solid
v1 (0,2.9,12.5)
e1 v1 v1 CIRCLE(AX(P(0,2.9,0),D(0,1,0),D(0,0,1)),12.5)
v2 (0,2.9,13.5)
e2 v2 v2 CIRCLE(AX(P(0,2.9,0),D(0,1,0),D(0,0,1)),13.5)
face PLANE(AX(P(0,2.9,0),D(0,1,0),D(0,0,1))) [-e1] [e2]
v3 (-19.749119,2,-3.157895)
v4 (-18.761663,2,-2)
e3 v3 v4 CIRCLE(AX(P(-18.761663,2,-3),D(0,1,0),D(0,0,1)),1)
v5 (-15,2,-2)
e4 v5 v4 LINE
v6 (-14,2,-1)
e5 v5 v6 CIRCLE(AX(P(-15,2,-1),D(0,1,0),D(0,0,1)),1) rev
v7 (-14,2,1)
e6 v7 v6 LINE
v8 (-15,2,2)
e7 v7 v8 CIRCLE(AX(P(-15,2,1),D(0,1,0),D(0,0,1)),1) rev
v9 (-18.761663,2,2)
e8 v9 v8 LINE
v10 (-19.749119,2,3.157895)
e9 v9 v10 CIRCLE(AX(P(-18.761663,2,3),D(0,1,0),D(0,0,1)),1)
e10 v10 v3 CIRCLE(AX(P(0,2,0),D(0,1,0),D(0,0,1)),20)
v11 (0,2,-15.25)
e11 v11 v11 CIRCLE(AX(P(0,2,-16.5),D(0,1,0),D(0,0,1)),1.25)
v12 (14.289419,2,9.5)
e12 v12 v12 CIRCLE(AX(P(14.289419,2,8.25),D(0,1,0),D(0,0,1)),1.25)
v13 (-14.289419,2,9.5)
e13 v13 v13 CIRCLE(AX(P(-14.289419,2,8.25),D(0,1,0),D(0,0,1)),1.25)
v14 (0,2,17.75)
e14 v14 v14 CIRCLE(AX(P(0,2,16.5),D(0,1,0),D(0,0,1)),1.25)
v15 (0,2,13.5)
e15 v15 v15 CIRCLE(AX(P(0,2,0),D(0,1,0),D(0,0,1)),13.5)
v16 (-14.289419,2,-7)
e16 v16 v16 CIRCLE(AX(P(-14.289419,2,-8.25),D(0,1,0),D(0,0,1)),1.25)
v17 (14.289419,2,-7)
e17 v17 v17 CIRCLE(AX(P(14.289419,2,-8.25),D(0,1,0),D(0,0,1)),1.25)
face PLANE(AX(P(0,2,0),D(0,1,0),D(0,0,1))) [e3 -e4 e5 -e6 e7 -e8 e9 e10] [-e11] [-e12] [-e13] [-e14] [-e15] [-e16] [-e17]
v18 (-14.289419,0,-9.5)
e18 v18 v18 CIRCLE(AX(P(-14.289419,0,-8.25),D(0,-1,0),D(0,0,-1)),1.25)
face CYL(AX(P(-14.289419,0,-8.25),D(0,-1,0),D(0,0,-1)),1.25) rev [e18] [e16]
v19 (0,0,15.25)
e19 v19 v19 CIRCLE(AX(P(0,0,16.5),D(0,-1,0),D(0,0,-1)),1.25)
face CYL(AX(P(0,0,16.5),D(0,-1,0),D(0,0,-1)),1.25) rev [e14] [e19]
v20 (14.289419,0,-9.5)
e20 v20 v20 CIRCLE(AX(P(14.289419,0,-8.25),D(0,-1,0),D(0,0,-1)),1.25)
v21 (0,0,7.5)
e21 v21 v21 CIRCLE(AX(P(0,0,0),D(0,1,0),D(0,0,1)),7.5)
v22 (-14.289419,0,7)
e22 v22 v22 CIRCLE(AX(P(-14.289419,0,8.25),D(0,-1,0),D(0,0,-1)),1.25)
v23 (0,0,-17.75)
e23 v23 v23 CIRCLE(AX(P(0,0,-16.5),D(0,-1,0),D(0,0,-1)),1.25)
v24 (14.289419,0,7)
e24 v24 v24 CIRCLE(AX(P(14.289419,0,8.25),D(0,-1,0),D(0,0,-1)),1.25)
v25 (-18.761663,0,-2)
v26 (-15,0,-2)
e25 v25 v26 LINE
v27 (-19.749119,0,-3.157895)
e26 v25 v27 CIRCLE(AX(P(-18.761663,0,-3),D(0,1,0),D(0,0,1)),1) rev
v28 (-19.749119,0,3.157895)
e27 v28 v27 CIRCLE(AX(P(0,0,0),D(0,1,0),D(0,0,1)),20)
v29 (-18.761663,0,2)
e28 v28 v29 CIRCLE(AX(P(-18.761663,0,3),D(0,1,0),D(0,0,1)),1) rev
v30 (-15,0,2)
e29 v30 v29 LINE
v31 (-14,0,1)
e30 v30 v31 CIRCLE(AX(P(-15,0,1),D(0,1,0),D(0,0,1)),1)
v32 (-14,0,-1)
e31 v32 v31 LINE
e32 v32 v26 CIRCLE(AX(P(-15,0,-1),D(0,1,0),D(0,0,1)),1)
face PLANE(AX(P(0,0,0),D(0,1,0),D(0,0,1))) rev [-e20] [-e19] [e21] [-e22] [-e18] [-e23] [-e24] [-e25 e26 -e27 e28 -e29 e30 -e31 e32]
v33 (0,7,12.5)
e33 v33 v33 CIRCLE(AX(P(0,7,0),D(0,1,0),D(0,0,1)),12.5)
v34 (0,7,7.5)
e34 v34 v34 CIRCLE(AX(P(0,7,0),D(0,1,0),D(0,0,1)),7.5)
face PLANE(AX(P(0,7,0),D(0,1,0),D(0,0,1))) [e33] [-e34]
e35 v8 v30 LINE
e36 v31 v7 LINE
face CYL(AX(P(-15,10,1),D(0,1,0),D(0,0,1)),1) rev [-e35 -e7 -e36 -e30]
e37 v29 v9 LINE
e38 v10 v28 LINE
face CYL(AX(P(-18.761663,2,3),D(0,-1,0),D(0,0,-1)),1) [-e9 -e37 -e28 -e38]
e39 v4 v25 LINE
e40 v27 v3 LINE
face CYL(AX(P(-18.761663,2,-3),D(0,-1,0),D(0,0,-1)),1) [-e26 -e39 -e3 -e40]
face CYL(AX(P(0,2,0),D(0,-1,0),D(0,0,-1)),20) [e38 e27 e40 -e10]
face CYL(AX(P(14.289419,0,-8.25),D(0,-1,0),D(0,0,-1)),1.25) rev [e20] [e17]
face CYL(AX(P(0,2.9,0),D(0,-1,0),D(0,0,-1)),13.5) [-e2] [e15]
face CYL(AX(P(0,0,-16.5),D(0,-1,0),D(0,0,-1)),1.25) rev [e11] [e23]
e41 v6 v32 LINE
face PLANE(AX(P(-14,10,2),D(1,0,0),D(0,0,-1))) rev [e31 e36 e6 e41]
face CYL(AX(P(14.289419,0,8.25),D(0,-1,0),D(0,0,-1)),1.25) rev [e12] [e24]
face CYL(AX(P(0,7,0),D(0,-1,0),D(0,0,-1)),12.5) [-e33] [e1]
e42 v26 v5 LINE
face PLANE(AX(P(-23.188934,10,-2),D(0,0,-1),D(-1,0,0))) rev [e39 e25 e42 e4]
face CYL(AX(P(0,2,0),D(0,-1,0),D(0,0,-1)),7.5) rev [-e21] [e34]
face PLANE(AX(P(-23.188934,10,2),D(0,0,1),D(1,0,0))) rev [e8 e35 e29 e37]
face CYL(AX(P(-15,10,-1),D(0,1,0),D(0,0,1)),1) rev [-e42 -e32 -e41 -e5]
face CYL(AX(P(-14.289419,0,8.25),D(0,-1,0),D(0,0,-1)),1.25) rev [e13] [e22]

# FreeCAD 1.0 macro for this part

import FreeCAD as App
import Part
import Sketcher

V = App.Vector
Q = App.Units.Quantity


def edges_at(feature, points):
    """Names of the edges that pass closest to the given points."""
    edges = feature.Shape.Edges
    near = lambda p: min(range(len(edges)), key=lambda i: edges[i].distToShape(Part.Vertex(*p))[0])
    return sorted({f"Edge{near(p) + 1}" for p in points})


def add_polygon(sketch, points):
    """Adds a closed chain of lines whose ends are joined by coincident constraints."""
    first, n = sketch.GeometryCount, len(points)
    for a, b in zip(points, points[1:] + points[:1]):
        sketch.addGeometry(Part.LineSegment(App.Vector(*a, 0), App.Vector(*b, 0)), False)
    for i in range(n):
        sketch.addConstraint(Sketcher.Constraint("Coincident", first + i, 2, first + (i + 1) % n, 1))

doc = App.newDocument("Part")
body = doc.addObject("PartDesign::Body", "Body")

# Sketch on XZ plane
sketch1 = doc.addObject("Sketcher::SketchObject", "Sketch")
body.addObject(sketch1)
sketch1.AttachmentSupport = (doc.XZ_Plane, [""])
sketch1.MapMode = "FlatFace"
sketch1.addGeometry([
    Part.Circle(V(0, 0, 0), V(0, 0, 1), 20),  # 0
    Part.Circle(V(-14.289419, -8.25, 0), V(0, 0, 1), 1),  # 1
    Part.Circle(V(0, -16.5, 0), V(0, 0, 1), 1),  # 2
    Part.Circle(V(-14.289419, 8.25, 0), V(0, 0, 1), 1),  # 3
    Part.Circle(V(14.289419, -8.25, 0), V(0, 0, 1), 1),  # 4
    Part.Circle(V(0, 0, 0), V(0, 0, 1), 7.5),  # 5
    Part.Circle(V(0, 16.5, 0), V(0, 0, 1), 1),  # 6
    Part.Circle(V(14.289419, 8.25, 0), V(0, 0, 1), 1),  # 7
], False)
sketch1.addConstraint([
    Sketcher.Constraint("Coincident", 0, 3, -1, 1),
    Sketcher.Constraint("Coincident", 5, 3, -1, 1),
    Sketcher.Constraint("Equal", 1, 2),
    Sketcher.Constraint("Equal", 2, 3),
    Sketcher.Constraint("Equal", 3, 4),
    Sketcher.Constraint("Equal", 4, 6),
    Sketcher.Constraint("Equal", 6, 7),
    Sketcher.Constraint("Symmetric", 3, 3, 4, 3, -1, 1),
    Sketcher.Constraint("Symmetric", 2, 3, 6, 3, -1, 1),
    Sketcher.Constraint("Symmetric", 1, 3, 7, 3, -1, 1),
    Sketcher.Constraint("Symmetric", 1, 3, 4, 3, -2),
    Sketcher.Constraint("PointOnObject", 2, 3, -2),
    Sketcher.Constraint("Diameter", 0, Q("40 mm")),
    Sketcher.Constraint("Diameter", 1, Q("2 mm")),
    Sketcher.Constraint("Diameter", 5, Q("15 mm")),
    Sketcher.Constraint("DistanceY", 2, 3, -1, 1, Q("16.5 mm")),
    Sketcher.Constraint("DistanceY", 1, 3, 3, 3, Q("16.5 mm")),
    Sketcher.Constraint("DistanceX", 1, 3, -1, 1, Q("14.289419 mm")),
])
pad1 = doc.addObject("PartDesign::Pad", "Pad")
body.addObject(pad1)
pad1.Profile = sketch1
pad1.Length = 2
pad1.Reversed = True

# Sketch on XZ plane
sketch2 = doc.addObject("Sketcher::SketchObject", "Sketch001")
body.addObject(sketch2)
sketch2.AttachmentSupport = (doc.XZ_Plane, [""])
sketch2.MapMode = "FlatFace"
sketch2.AttachmentOffset = App.Placement(V(0, 0, -2), App.Rotation())
sketch2.addGeometry([
    Part.Circle(V(0, 0, 0), V(0, 0, 1), 12.5),
    Part.Circle(V(0, 0, 0), V(0, 0, 1), 7.5),
], False)
sketch2.addConstraint([
    Sketcher.Constraint("Coincident", 0, 3, -1, 1),
    Sketcher.Constraint("Coincident", 1, 3, -1, 1),
    Sketcher.Constraint("Diameter", 0, Q("25 mm")),
    Sketcher.Constraint("Diameter", 1, Q("15 mm")),
])
pad2 = doc.addObject("PartDesign::Pad", "Pad001")
body.addObject(pad2)
pad2.Profile = sketch2
pad2.Length = 5
pad2.Reversed = True

# Sketch on XZ plane
sketch3 = doc.addObject("Sketcher::SketchObject", "Sketch002")
body.addObject(sketch3)
sketch3.AttachmentSupport = (doc.XZ_Plane, [""])
sketch3.MapMode = "FlatFace"
sketch3.AttachmentOffset = App.Placement(V(0, 0, -2), App.Rotation())
sketch3.addGeometry([
    Part.Circle(V(0, 0, 0), V(0, 0, 1), 13.5),
    Part.Circle(V(0, 0, 0), V(0, 0, 1), 12.5),
], False)
sketch3.addConstraint([
    Sketcher.Constraint("Coincident", 0, 3, -1, 1),
    Sketcher.Constraint("Coincident", 1, 3, -1, 1),
    Sketcher.Constraint("Diameter", 0, Q("27 mm")),
    Sketcher.Constraint("Diameter", 1, Q("25 mm")),
])
pad3 = doc.addObject("PartDesign::Pad", "Pad002")
body.addObject(pad3)
pad3.Profile = sketch3
pad3.Length = 0.9
pad3.Reversed = True

# Sketch on XZ plane
sketch4 = doc.addObject("Sketcher::SketchObject", "Sketch003")
body.addObject(sketch4)
sketch4.AttachmentSupport = (doc.XZ_Plane, [""])
sketch4.MapMode = "FlatFace"
add_polygon(sketch4, [(-23.188934, 2), (-23.188934, -2), (-14, -2), (-14, 2)])  # lines 0-3
sketch4.addConstraint([
    Sketcher.Constraint("Vertical", 0),
    Sketcher.Constraint("Horizontal", 1),
    Sketcher.Constraint("Vertical", 2),
    Sketcher.Constraint("Horizontal", 3),
    Sketcher.Constraint("DistanceY", 0, 2, 0, 1, Q("4 mm")),
    Sketcher.Constraint("DistanceY", 0, 2, -1, 1, Q("2 mm")),
    Sketcher.Constraint("DistanceX", 1, 2, -1, 1, Q("14 mm")),
    Sketcher.Constraint("DistanceX", 1, 1, 1, 2, Q("9.188934 mm")),
])
pocket1 = doc.addObject("PartDesign::Pocket", "Pocket")
body.addObject(pocket1)
pocket1.Profile = sketch4
pocket1.Length = 10
doc.recompute()

fillet = doc.addObject("PartDesign::Fillet", "Fillet")
body.addObject(fillet)
fillet.Base = (pocket1, edges_at(pocket1, [
    (-19.9, 1, -2),
    (-19.9, 1, 2),
    (-14, 1, 2),
    (-14, 1, -2),
]))
fillet.Radius = 1

# Sketch on XZ plane
sketch5 = doc.addObject("Sketcher::SketchObject", "Sketch004")
body.addObject(sketch5)
sketch5.AttachmentSupport = (doc.XZ_Plane, [""])
sketch5.MapMode = "FlatFace"
sketch5.addGeometry([
    Part.Circle(V(-14.289419, 8.25, 0), V(0, 0, 1), 1.25),  # 0
    Part.Circle(V(0, 16.5, 0), V(0, 0, 1), 1.25),  # 1
    Part.Circle(V(14.289419, 8.25, 0), V(0, 0, 1), 1.25),  # 2
    Part.Circle(V(14.289419, -8.25, 0), V(0, 0, 1), 1.25),  # 3
    Part.Circle(V(0, -16.5, 0), V(0, 0, 1), 1.25),  # 4
    Part.Circle(V(-14.289419, -8.25, 0), V(0, 0, 1), 1.25),  # 5
], False)
sketch5.addConstraint([
    Sketcher.Constraint("Equal", 0, 1),
    Sketcher.Constraint("Equal", 1, 2),
    Sketcher.Constraint("Equal", 2, 3),
    Sketcher.Constraint("Equal", 3, 4),
    Sketcher.Constraint("Equal", 4, 5),
    Sketcher.Constraint("Symmetric", 0, 3, 3, 3, -1, 1),
    Sketcher.Constraint("Symmetric", 1, 3, 4, 3, -1, 1),
    Sketcher.Constraint("Symmetric", 2, 3, 5, 3, -1, 1),
    Sketcher.Constraint("Symmetric", 0, 3, 2, 3, -2),
    Sketcher.Constraint("PointOnObject", 1, 3, -2),
    Sketcher.Constraint("Diameter", 0, Q("2.5 mm")),
    Sketcher.Constraint("DistanceY", 4, 3, 1, 3, Q("33 mm")),
    Sketcher.Constraint("DistanceY", 3, 3, 2, 3, Q("16.5 mm")),
    Sketcher.Constraint("DistanceX", 0, 3, -1, 1, Q("14.289419 mm")),
])
doc.recompute()
hole = doc.addObject("PartDesign::Hole", "Hole")
body.addObject(hole)
hole.Profile = sketch5
hole.ThreadType = "None"
hole.Diameter = 2.5
hole.DepthType = "ThroughAll"

doc.recompute()
